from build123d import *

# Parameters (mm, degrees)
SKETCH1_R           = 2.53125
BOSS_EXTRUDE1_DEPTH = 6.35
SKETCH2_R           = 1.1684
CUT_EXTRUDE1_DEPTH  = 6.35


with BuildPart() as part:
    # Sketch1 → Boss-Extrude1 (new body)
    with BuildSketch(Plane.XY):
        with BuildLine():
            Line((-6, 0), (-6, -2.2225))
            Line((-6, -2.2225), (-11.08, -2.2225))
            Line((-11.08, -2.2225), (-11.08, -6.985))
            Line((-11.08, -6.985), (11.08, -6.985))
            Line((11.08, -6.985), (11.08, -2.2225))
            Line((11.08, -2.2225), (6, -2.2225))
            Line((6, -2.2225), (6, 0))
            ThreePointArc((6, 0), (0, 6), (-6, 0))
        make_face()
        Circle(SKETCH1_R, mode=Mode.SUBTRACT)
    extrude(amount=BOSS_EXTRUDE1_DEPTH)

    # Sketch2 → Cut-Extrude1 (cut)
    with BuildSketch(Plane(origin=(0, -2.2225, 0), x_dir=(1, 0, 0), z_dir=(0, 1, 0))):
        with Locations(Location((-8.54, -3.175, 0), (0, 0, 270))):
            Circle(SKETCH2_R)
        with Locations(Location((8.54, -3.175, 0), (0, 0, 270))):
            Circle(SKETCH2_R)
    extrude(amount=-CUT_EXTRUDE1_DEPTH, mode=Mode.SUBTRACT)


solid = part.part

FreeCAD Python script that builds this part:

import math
import FreeCAD as App
import Part
import Sketcher

V = App.Vector
Q = App.Units.Quantity

doc = App.newDocument("Part")
body = doc.addObject("PartDesign::Body", "Body")

# Sketch on XY plane
sketch1 = body.newObject("Sketcher::SketchObject", "Sketch")
sketch1.AttachmentSupport = (doc.getObject("XY_Plane"), [""])
sketch1.MapMode = "FlatFace"
sketch1.addGeometry(Part.LineSegment(V(-6, 0, 0), V(-6, -2.2, 0)), False)
sketch1.addGeometry(Part.LineSegment(V(-6, -2.2, 0), V(-11.1, -2.2, 0)), False)
sketch1.addGeometry(Part.LineSegment(V(-11.1, -2.2, 0), V(-11.1, -7, 0)), False)
sketch1.addGeometry(Part.LineSegment(V(-11.1, -7, 0), V(11.1, -7, 0)), False)
sketch1.addGeometry(Part.LineSegment(V(11.1, -7, 0), V(11.1, -2.2, 0)), False)
sketch1.addGeometry(Part.LineSegment(V(11.1, -2.2, 0), V(6, -2.2, 0)), False)
sketch1.addGeometry(Part.LineSegment(V(6, -2.2, 0), V(6, 0, 0)), False)
sketch1.addGeometry(Part.ArcOfCircle(Part.Circle(V(0, 0, 0), V(0, 0, 1), 6), math.radians(0), math.radians(180)), False)
sketch1.addGeometry(Part.Circle(V(0, 0, 0), V(0, 0, 1), 2.5), False)
sketch1.addConstraint(Sketcher.Constraint("Coincident", 0, 2, 1, 1))
sketch1.addConstraint(Sketcher.Constraint("Coincident", 1, 2, 2, 1))
sketch1.addConstraint(Sketcher.Constraint("Coincident", 2, 2, 3, 1))
sketch1.addConstraint(Sketcher.Constraint("Coincident", 3, 2, 4, 1))
sketch1.addConstraint(Sketcher.Constraint("Coincident", 4, 2, 5, 1))
sketch1.addConstraint(Sketcher.Constraint("Coincident", 5, 2, 6, 1))
sketch1.addConstraint(Sketcher.Constraint("Tangent", 6, 2, 7, 1))
sketch1.addConstraint(Sketcher.Constraint("Tangent", 7, 2, 0, 1))
sketch1.addConstraint(Sketcher.Constraint("Vertical", 0))
sketch1.addConstraint(Sketcher.Constraint("Horizontal", 1))
sketch1.addConstraint(Sketcher.Constraint("Vertical", 2))
sketch1.addConstraint(Sketcher.Constraint("Horizontal", 3))
sketch1.addConstraint(Sketcher.Constraint("Vertical", 4))
sketch1.addConstraint(Sketcher.Constraint("Horizontal", 5))
sketch1.addConstraint(Sketcher.Constraint("Vertical", 6))
sketch1.addConstraint(Sketcher.Constraint("Coincident", 7, 3, -1, 1))
sketch1.addConstraint(Sketcher.Constraint("Coincident", 8, 3, -1, 1))
sketch1.addConstraint(Sketcher.Constraint("Symmetric", 1, 2, 4, 2, -2))
sketch1.addConstraint(Sketcher.Constraint("DistanceX", 1, 2, 1, 1, Q("0.2 in")))
sketch1.addConstraint(Sketcher.Constraint("Diameter", 8, 5.0625))
sketch1.addConstraint(Sketcher.Constraint("DistanceY", 2, 2, 2, 1, Q("0.1875 in")))
sketch1.addConstraint(Sketcher.Constraint("Radius", 7, 6.0))
sketch1.addConstraint(Sketcher.Constraint("DistanceY", 0, 2, 0, 1, Q("0.0875 in")))
pad1 = body.newObject("PartDesign::Pad", "Pad")
pad1.Profile = sketch1
pad1.Length = Q("0.25 in")

# Sketch on XZ plane
sketch2 = body.newObject("Sketcher::SketchObject", "Sketch001")
sketch2.AttachmentSupport = (doc.getObject("XZ_Plane"), [""])
sketch2.MapMode = "FlatFace"
sketch2.AttachmentOffset = App.Placement(V(0, 0, 0.0875 * 25.4), App.Rotation())
sketch2.addGeometry(Part.Circle(V(-8.5, 3.2, 0), V(0, 0, 1), 1.2), False)
sketch2.addGeometry(Part.Circle(V(8.5, 3.2, 0), V(0, 0, 1), 1.2), False)
sketch2.addConstraint(Sketcher.Constraint("Equal", 0, 1))
sketch2.addConstraint(Sketcher.Constraint("Symmetric", 0, 3, 1, 3, -2))
sketch2.addConstraint(Sketcher.Constraint("Diameter", 0, Q("0.092 in")))
sketch2.addConstraint(Sketcher.Constraint("DistanceY", -1, 1, 0, 3, Q("0.125 in")))
sketch2.addConstraint(Sketcher.Constraint("DistanceX", 0, 3, -1, 1, 8.54))
pocket1 = body.newObject("PartDesign::Pocket", "Pocket")
pocket1.Profile = sketch2
pocket1.Length = Q("0.25 in")
pocket1.Reversed = True

doc.recompute()
